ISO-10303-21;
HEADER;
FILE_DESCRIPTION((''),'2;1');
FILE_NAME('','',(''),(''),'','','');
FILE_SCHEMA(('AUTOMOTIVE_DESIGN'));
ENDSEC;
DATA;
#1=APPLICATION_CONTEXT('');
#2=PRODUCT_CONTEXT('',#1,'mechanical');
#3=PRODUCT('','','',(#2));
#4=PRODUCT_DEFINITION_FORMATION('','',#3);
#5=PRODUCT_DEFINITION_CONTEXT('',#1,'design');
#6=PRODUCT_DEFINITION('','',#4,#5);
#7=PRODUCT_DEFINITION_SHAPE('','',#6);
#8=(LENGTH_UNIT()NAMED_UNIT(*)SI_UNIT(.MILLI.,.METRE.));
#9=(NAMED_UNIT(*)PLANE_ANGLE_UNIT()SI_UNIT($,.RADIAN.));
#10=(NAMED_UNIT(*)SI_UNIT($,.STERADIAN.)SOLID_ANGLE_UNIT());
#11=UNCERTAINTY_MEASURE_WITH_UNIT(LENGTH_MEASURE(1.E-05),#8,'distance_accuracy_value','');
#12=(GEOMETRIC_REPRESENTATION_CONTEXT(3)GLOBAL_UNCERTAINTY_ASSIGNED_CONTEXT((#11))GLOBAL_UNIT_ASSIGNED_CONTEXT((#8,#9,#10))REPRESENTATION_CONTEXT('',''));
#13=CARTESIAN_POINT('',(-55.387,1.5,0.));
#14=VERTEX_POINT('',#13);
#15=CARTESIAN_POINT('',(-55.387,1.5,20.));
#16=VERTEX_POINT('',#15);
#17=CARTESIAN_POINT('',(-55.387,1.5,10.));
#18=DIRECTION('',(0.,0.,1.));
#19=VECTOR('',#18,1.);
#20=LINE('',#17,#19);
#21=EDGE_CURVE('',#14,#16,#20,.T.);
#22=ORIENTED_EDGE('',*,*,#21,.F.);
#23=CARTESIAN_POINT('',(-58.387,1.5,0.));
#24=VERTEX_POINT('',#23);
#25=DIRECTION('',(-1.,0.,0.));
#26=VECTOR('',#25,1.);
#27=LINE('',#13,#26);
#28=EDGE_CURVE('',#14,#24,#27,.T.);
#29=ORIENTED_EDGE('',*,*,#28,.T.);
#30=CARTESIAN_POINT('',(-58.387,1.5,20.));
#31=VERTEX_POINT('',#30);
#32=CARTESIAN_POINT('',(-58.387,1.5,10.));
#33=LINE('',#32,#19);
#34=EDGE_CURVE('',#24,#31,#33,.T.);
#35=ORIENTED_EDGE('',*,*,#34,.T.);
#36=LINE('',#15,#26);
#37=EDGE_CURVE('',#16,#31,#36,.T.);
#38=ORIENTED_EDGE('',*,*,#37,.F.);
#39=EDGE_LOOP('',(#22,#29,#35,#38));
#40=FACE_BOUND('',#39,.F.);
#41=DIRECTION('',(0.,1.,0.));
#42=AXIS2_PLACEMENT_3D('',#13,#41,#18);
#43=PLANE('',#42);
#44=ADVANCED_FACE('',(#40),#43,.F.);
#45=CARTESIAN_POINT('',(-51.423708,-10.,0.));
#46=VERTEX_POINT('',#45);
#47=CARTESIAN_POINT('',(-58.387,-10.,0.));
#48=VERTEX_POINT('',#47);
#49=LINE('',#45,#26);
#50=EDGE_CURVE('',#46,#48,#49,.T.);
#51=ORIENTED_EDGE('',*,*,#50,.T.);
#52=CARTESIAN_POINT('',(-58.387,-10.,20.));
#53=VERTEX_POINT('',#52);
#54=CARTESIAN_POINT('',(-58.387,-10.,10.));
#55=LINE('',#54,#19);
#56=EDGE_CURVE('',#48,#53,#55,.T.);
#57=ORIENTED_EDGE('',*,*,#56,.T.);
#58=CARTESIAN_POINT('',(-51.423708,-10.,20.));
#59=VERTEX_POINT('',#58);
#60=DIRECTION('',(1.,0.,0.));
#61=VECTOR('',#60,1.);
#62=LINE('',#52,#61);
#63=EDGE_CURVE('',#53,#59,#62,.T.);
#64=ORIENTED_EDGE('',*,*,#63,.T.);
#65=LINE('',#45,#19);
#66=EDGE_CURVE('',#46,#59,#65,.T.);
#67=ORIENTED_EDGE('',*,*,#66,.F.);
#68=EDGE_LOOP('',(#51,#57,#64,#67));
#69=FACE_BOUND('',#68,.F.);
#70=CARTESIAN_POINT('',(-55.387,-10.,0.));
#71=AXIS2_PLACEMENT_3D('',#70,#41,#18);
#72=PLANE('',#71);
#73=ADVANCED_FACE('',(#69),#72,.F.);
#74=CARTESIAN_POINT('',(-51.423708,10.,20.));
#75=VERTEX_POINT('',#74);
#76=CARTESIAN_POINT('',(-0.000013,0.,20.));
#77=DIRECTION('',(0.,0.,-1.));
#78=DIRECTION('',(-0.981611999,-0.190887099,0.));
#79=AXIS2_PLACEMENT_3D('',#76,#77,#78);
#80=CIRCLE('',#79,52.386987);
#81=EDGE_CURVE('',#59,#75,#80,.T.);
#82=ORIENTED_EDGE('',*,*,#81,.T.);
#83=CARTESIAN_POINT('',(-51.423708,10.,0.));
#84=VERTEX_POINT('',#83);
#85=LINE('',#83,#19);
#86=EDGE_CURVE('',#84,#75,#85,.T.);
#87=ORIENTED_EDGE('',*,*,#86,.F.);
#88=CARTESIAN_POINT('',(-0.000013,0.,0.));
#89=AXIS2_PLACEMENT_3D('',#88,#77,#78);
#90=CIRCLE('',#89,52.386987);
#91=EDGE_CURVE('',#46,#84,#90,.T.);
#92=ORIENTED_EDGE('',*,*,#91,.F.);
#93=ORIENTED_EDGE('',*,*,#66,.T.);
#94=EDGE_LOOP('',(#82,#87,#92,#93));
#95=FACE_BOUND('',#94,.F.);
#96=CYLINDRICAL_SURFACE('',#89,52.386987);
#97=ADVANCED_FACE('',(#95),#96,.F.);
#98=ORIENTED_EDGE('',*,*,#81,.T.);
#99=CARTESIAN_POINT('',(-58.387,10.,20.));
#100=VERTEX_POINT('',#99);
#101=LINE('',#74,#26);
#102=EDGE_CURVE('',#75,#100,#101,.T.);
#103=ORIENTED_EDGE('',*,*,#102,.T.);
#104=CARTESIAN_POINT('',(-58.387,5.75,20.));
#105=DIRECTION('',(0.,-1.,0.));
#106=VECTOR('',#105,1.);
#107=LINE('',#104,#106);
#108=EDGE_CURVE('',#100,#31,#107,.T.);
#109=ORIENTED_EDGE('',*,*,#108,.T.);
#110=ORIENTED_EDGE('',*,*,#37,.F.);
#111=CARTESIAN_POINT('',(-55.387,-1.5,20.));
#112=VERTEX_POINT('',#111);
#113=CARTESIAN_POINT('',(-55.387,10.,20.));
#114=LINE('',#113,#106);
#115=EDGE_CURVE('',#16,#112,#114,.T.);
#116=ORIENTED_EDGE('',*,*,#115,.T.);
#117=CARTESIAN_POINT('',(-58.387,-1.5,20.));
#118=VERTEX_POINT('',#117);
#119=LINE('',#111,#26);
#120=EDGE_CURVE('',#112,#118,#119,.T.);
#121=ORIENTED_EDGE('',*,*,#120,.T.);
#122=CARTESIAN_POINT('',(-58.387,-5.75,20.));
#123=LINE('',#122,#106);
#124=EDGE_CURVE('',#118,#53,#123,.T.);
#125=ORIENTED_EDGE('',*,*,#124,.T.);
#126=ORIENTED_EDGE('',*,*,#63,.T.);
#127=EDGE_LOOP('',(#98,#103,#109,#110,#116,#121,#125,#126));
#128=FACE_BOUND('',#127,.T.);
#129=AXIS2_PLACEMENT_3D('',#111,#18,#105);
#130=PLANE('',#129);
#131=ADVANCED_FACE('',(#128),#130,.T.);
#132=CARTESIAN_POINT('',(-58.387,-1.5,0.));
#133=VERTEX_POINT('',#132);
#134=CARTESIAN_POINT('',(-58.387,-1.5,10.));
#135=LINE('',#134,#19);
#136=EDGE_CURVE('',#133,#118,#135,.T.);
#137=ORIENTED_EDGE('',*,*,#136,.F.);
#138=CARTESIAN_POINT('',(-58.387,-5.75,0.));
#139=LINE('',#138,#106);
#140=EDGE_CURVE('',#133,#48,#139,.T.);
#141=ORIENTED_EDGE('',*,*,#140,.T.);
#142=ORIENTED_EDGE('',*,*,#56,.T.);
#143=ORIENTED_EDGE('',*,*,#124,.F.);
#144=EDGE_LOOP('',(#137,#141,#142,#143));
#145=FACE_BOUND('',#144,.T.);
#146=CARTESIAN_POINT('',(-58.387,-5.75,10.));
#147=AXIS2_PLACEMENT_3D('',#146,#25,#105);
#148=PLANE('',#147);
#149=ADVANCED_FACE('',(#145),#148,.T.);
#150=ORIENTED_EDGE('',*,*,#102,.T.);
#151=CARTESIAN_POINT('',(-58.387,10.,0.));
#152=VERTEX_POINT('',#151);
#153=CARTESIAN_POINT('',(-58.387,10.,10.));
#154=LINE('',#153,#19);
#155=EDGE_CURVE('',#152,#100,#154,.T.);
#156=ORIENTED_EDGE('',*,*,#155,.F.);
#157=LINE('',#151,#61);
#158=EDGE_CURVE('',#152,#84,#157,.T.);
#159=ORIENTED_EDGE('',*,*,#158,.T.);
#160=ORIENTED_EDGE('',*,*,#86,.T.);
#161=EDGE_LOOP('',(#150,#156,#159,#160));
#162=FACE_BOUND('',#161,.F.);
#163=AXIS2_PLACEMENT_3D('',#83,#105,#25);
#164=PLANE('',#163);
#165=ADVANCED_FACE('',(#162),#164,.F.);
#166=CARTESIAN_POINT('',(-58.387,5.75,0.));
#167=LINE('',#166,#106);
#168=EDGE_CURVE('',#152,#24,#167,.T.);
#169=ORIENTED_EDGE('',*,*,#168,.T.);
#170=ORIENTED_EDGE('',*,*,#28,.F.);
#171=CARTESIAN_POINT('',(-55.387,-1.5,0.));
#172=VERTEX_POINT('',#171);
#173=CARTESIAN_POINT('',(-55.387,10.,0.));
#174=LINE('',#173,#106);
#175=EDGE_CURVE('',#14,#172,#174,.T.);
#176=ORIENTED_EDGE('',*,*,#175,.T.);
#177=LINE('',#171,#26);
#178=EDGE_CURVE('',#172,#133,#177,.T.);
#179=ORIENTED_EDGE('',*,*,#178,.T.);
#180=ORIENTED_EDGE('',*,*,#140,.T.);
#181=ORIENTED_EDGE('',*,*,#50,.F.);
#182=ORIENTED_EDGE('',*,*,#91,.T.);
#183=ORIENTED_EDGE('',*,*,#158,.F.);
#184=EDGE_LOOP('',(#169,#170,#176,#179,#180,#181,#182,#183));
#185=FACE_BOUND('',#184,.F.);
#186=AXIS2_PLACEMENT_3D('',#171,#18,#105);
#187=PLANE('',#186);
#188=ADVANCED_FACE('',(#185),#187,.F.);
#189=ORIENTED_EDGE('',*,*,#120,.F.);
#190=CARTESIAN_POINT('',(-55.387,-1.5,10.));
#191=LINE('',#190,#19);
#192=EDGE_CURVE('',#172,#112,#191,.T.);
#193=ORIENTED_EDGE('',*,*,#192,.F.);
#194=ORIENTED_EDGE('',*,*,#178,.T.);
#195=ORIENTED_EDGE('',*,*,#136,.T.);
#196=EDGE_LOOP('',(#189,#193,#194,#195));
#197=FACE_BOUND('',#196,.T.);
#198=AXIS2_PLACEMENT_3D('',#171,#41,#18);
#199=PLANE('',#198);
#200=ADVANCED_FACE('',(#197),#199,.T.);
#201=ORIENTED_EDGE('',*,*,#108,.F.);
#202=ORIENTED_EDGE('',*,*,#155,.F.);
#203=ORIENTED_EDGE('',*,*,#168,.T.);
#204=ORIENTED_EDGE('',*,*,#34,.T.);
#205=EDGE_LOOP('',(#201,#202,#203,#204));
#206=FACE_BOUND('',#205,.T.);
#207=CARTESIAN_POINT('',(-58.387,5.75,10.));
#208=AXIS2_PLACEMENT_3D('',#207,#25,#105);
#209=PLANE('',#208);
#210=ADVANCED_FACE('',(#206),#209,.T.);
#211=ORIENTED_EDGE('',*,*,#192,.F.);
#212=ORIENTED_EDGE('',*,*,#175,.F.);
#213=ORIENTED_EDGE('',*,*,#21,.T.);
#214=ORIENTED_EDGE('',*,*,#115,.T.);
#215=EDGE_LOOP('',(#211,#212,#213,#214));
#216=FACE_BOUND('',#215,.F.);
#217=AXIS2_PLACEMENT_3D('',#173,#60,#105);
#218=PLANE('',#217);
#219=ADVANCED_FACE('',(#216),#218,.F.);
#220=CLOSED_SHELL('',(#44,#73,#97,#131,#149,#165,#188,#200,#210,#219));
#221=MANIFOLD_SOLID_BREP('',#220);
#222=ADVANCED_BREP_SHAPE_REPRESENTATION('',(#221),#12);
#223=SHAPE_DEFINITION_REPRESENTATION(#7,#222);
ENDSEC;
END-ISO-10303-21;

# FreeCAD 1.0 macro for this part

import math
import FreeCAD as App
import Part
import Sketcher
from FreeCAD import Vector
Q = App.Units.Quantity

doc = App.newDocument("Part")
params = doc.addObject("Spreadsheet::Sheet", "Params")
for row, (alias, value) in enumerate([
    ("sketch1_height", "20 mm"),
    ("pad1_length", "20 mm"),
    ("sketch2_height", "20 mm"),
    ("sketch2_width", "8.5 mm"),
    ("pad2_length", "3 mm"),
], start=1):
    params.set(f"A{row}", alias)
    params.set(f"B{row}", "=" + value)
    params.setAlias(f"B{row}", alias)

body = doc.addObject("PartDesign::Body", "Body")

# Sketch on XY plane
sketch1 = body.newObject("Sketcher::SketchObject", "Sketch")
sketch1.AttachmentSupport = (doc.getObject("XY_Plane"), [""])
sketch1.MapMode = "FlatFace"
sketch1.addGeometry([
    Part.ArcOfCircle(Part.Circle(Vector(0, 0, 0), Vector(0, 0, 1), 52.4), math.radians(169), math.radians(191)),
    Part.LineSegment(Vector(-51.4, 10, 0), Vector(-55.4, 10, 0)),
    Part.LineSegment(Vector(-55.4, 10, 0), Vector(-55.4, -10, 0)),
    Part.LineSegment(Vector(-55.4, -10, 0), Vector(-51.4, -10, 0)),
], False)
sketch1.addConstraint([
    Sketcher.Constraint("Coincident", 0, 1, 1, 1),
    Sketcher.Constraint("Coincident", 1, 2, 2, 1),
    Sketcher.Constraint("Coincident", 2, 2, 3, 1),
    Sketcher.Constraint("Coincident", 3, 2, 0, 2),
    Sketcher.Constraint("Horizontal", 1),
    Sketcher.Constraint("Vertical", 2),
    Sketcher.Constraint("Horizontal", 3),
    Sketcher.Constraint("Symmetric", 0, 1, 3, 2, -1),
    Sketcher.Constraint("DistanceY", 2, 2, 2, 1, Q("20 mm")),
    Sketcher.Constraint("DistanceX", 1, 2, -1, 1, Q("55.387 mm")),
    Sketcher.Constraint("Radius", 0, Q("52.386987 mm")),
    Sketcher.Constraint("DistanceX", 1, 2, 1, 1, Q("3.963292 mm")),
])
sketch1.setExpression("Constraints[8]", "Params.sketch1_height")
pad1 = body.newObject("PartDesign::Pad", "Pad")
pad1.Profile = sketch1
pad1.setExpression("Length", "Params.pad1_length")

# Sketch on YZ plane
sketch2 = body.newObject("Sketcher::SketchObject", "Sketch001")
sketch2.AttachmentSupport = (doc.getObject("YZ_Plane"), [""])
sketch2.MapMode = "FlatFace"
sketch2.AttachmentOffset = App.Placement(Vector(0, 0, -55.387), App.Rotation())
sketch2.addGeometry([
    Part.LineSegment(Vector(-2, 20, 0), Vector(-2, 0, 0)),  # 0
    Part.LineSegment(Vector(-2, 0, 0), Vector(-10, 0, 0)),  # 1
    Part.LineSegment(Vector(-10, 0, 0), Vector(-10, 20, 0)),  # 2
    Part.LineSegment(Vector(-10, 20, 0), Vector(-2, 20, 0)),  # 3
    Part.LineSegment(Vector(10, 20, 0), Vector(10, 0, 0)),  # 4
    Part.LineSegment(Vector(10, 0, 0), Vector(2, 0, 0)),  # 5
    Part.LineSegment(Vector(2, 0, 0), Vector(2, 20, 0)),  # 6
    Part.LineSegment(Vector(2, 20, 0), Vector(10, 20, 0)),  # 7
], False)
sketch2.addConstraint([
    Sketcher.Constraint("Coincident", 0, 2, 1, 1),
    Sketcher.Constraint("Coincident", 1, 2, 2, 1),
    Sketcher.Constraint("Coincident", 2, 2, 3, 1),
    Sketcher.Constraint("Coincident", 3, 2, 0, 1),
    Sketcher.Constraint("Coincident", 4, 2, 5, 1),
    Sketcher.Constraint("Coincident", 5, 2, 6, 1),
    Sketcher.Constraint("Coincident", 6, 2, 7, 1),
    Sketcher.Constraint("Coincident", 7, 2, 4, 1),
    Sketcher.Constraint("Vertical", 0),
    Sketcher.Constraint("Horizontal", 1),
    Sketcher.Constraint("Vertical", 2),
    Sketcher.Constraint("Horizontal", 3),
    Sketcher.Constraint("Vertical", 4),
    Sketcher.Constraint("Horizontal", 5),
    Sketcher.Constraint("Vertical", 6),
    Sketcher.Constraint("Horizontal", 7),
    Sketcher.Constraint("Symmetric", 1, 2, 4, 2, -1, 1),
    Sketcher.Constraint("Symmetric", 0, 2, 5, 2, -2),
    Sketcher.Constraint("Horizontal", 3, 2, 6, 2),
    Sketcher.Constraint("DistanceY", 0, 2, 0, 1, Q("20 mm")),
    Sketcher.Constraint("DistanceX", 1, 2, 1, 1, Q("8.5 mm")),
    Sketcher.Constraint("DistanceX", 1, 2, -1, 1, Q("10 mm")),
])
sketch2.setExpression("Constraints[19]", "Params.sketch2_height")
sketch2.setExpression("Constraints[20]", "Params.sketch2_width")
pad2 = body.newObject("PartDesign::Pad", "Pad001")
pad2.Profile = sketch2
pad2.setExpression("Length", "Params.pad2_length")
pad2.Reversed = True

doc.recompute()
